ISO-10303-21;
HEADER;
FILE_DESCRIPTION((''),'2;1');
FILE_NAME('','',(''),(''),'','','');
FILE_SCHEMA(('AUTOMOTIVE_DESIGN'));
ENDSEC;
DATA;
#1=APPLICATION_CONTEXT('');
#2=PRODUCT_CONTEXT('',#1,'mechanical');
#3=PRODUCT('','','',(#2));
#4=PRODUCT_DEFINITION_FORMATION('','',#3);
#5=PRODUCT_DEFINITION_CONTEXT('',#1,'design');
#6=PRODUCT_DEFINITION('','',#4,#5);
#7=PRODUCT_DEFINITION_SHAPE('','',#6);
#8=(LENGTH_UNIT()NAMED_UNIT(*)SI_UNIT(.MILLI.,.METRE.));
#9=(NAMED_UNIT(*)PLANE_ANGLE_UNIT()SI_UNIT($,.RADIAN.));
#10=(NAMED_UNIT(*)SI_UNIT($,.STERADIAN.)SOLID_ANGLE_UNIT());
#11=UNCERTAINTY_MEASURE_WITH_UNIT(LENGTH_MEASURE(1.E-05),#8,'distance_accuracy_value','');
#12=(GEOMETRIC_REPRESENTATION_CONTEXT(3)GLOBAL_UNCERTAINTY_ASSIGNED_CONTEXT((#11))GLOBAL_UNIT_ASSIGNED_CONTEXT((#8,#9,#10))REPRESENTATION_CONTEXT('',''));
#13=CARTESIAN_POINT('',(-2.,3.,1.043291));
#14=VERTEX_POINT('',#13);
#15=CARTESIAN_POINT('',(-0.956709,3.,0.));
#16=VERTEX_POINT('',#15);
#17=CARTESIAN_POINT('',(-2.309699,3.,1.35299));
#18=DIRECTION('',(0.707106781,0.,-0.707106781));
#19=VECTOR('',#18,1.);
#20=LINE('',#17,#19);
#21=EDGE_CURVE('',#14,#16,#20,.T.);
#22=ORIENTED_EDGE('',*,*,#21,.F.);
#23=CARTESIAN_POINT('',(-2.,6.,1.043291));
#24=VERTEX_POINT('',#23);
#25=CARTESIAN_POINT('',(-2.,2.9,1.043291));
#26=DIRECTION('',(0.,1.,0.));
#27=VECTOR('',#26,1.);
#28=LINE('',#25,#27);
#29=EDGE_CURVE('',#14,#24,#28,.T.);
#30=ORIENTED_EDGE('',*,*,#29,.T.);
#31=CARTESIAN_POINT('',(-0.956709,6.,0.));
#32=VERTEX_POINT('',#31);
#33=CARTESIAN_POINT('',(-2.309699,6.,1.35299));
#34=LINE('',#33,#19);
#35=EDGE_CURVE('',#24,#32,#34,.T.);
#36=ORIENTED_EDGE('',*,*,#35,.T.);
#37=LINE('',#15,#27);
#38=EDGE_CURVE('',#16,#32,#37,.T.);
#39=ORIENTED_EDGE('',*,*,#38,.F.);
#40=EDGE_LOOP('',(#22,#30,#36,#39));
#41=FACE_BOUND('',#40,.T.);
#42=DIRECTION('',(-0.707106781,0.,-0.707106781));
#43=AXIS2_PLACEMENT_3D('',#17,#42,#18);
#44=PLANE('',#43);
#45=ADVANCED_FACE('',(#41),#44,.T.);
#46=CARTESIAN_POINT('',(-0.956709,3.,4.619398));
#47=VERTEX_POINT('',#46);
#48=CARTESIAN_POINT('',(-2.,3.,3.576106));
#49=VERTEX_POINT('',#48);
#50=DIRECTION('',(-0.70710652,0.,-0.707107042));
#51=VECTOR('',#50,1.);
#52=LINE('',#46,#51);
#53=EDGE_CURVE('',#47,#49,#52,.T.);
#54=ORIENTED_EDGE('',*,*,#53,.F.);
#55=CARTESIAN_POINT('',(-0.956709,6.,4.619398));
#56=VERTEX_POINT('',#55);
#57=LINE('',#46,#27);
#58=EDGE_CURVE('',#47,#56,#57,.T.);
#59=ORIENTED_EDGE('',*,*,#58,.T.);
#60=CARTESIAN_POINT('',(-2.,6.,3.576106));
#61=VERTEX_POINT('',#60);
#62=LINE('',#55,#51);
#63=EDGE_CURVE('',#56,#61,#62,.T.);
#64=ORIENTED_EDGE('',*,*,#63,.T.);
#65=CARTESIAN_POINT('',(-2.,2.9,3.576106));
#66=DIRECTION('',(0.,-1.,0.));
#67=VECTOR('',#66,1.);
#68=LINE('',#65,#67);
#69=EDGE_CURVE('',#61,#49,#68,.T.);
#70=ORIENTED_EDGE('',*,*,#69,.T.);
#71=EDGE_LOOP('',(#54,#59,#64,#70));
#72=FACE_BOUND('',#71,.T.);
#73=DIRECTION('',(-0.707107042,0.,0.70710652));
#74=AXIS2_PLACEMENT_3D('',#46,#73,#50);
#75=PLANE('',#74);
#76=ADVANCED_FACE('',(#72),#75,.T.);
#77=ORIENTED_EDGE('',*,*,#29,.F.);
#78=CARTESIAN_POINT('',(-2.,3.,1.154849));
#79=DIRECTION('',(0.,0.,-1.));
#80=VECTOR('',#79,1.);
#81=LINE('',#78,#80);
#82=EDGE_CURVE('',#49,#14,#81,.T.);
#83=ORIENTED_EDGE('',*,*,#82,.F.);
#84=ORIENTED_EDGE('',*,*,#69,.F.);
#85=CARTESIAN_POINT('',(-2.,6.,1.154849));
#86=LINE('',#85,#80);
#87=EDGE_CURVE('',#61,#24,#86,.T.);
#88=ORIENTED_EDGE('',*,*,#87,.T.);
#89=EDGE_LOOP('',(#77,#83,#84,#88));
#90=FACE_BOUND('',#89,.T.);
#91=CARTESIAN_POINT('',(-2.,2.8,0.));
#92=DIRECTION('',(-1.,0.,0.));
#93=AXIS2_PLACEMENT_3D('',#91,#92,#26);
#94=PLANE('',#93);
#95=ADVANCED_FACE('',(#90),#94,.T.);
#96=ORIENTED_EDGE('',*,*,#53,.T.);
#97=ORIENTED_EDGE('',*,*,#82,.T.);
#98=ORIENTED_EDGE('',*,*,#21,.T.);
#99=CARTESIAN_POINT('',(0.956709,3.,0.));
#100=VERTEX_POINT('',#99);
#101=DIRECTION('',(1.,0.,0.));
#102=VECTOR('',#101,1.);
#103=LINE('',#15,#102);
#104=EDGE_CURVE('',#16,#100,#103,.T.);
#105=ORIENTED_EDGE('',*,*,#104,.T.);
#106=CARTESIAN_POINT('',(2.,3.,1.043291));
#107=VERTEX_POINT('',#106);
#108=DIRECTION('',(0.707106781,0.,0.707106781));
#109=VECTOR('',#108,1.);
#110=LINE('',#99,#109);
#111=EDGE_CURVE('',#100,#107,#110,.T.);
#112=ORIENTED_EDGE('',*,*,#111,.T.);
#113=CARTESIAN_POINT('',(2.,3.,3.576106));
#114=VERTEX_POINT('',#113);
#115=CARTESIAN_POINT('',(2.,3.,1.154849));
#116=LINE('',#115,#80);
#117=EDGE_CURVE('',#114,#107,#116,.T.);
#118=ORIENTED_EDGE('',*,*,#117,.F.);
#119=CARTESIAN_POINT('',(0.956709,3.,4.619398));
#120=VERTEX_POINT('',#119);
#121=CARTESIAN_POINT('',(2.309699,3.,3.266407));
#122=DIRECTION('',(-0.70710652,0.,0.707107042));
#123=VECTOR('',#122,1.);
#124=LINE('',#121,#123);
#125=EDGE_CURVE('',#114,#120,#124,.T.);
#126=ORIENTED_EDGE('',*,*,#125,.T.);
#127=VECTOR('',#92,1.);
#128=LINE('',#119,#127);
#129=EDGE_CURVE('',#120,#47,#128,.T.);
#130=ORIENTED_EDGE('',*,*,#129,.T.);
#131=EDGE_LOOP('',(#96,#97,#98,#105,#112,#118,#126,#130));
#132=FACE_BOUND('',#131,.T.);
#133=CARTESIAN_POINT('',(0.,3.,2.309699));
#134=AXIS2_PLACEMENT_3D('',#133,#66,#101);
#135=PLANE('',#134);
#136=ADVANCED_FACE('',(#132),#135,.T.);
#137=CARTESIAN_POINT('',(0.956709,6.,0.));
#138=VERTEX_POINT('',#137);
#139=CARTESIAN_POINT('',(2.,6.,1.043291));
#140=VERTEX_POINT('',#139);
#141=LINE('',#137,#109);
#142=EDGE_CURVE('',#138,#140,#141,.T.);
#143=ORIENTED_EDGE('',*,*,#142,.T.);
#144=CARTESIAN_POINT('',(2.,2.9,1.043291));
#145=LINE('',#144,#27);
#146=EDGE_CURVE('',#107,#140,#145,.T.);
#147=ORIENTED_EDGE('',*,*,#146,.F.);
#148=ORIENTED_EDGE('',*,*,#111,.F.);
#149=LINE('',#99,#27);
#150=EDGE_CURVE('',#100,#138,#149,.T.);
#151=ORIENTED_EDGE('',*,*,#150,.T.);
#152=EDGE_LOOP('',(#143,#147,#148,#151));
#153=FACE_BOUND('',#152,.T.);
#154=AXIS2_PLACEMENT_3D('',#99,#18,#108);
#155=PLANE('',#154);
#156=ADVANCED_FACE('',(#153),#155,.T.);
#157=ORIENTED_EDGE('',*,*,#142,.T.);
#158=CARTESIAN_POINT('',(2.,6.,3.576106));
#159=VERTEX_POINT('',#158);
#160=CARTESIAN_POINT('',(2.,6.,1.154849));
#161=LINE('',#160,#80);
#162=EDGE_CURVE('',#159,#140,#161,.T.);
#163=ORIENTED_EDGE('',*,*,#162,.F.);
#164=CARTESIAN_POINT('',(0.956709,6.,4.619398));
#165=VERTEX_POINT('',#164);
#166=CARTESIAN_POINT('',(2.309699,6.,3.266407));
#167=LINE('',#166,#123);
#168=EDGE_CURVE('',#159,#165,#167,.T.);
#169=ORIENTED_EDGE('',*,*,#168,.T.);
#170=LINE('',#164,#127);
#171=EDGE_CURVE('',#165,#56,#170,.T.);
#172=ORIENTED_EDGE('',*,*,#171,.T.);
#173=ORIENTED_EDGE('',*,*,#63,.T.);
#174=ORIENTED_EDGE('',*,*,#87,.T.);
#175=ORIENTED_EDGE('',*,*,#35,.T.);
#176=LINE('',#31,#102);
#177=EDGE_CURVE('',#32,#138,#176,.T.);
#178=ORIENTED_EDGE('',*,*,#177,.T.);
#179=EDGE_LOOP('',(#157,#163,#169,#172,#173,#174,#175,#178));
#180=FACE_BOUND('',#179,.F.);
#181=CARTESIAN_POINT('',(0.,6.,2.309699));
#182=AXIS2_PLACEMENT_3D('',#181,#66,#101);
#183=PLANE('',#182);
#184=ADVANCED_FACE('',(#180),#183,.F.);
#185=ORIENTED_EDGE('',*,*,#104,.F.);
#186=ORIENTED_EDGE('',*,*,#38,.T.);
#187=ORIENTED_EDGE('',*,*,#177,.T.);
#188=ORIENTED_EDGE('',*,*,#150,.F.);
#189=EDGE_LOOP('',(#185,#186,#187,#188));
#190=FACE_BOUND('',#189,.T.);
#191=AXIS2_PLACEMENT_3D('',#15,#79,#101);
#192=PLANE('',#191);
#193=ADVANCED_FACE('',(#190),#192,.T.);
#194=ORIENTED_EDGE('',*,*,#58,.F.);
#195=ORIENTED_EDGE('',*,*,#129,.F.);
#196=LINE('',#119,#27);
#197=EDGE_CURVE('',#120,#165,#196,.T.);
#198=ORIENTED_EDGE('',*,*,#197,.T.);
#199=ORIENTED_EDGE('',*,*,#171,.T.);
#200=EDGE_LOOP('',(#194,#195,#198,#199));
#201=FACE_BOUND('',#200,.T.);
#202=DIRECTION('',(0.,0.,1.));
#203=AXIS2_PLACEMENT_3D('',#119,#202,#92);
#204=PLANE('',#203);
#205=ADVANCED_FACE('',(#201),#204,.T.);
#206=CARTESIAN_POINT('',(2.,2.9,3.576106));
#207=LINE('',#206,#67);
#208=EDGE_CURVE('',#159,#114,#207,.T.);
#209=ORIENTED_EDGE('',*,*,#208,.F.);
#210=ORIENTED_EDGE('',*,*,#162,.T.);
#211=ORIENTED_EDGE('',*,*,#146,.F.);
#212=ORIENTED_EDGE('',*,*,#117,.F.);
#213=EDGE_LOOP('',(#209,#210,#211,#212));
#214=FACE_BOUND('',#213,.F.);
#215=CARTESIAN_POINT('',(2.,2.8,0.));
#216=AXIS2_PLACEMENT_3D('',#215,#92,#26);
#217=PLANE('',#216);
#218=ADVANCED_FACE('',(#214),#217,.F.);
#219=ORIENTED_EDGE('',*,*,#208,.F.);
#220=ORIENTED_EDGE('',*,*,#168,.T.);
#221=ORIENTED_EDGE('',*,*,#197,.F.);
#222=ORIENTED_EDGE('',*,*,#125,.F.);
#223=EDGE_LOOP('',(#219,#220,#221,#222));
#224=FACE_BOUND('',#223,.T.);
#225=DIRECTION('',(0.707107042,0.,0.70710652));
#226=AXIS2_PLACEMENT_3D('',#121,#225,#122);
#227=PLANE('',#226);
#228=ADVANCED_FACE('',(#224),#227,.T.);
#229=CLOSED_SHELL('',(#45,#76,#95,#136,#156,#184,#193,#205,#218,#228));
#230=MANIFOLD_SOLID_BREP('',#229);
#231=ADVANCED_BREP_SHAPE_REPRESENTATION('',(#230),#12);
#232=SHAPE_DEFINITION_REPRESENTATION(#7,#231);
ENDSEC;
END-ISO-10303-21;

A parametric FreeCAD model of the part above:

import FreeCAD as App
import Part
import Sketcher

V = App.Vector

doc = App.newDocument("Part")
body = doc.addObject("PartDesign::Body", "Body")

# Sketch on XY plane
sketch1 = body.newObject("Sketcher::SketchObject", "Sketch")
sketch1.AttachmentSupport = (doc.getObject("XY_Plane"), [""])
sketch1.MapMode = "FlatFace"
sketch1.addGeometry([
    Part.LineSegment(V(-2, 6.8, 0), V(-2, 2.8, 0)),
    Part.LineSegment(V(-2, 2.8, 0), V(2, 2.8, 0)),
    Part.LineSegment(V(2, 2.8, 0), V(2, 6.8, 0)),
    Part.LineSegment(V(2, 6.8, 0), V(-2, 6.8, 0)),
], False)
sketch1.addConstraint([
    Sketcher.Constraint("Coincident", 0, 2, 1, 1),
    Sketcher.Constraint("Coincident", 1, 2, 2, 1),
    Sketcher.Constraint("Coincident", 2, 2, 3, 1),
    Sketcher.Constraint("Coincident", 3, 2, 0, 1),
    Sketcher.Constraint("Vertical", 0),
    Sketcher.Constraint("Horizontal", 1),
    Sketcher.Constraint("Vertical", 2),
    Sketcher.Constraint("Horizontal", 3),
    Sketcher.Constraint("Equal", 3, 0),
    Sketcher.Constraint("DistanceX", 1, 1, 1, 2, 4.0),
    Sketcher.Constraint("DistanceX", 0, 2, -1, 1, 2.0),
    Sketcher.Constraint("DistanceY", -1, 1, 0, 2, 2.8),
])
pad1 = body.newObject("PartDesign::Pad", "Pad")
pad1.Profile = sketch1
pad1.Length = 10
body2 = doc.addObject("PartDesign::Body", "Body001")

# Sketch on XZ plane
sketch2 = body2.newObject("Sketcher::SketchObject", "Sketch001")
sketch2.AttachmentSupport = (doc.getObject("XZ_Plane001"), [""])
sketch2.MapMode = "FlatFace"
sketch2.addGeometry([
    Part.LineSegment(V(2.3, 1.4, 0), V(2.3, 3.3, 0)),  # 0
    Part.LineSegment(V(2.3, 3.3, 0), V(1, 4.6, 0)),  # 1
    Part.LineSegment(V(1, 4.6, 0), V(-1, 4.6, 0)),  # 2
    Part.LineSegment(V(-1, 4.6, 0), V(-2.3, 3.3, 0)),  # 3
    Part.LineSegment(V(-2.3, 3.3, 0), V(-2.3, 1.4, 0)),  # 4
    Part.LineSegment(V(-2.3, 1.4, 0), V(-1, 0, 0)),  # 5
    Part.LineSegment(V(-1, 0, 0), V(1, 0, 0)),  # 6
    Part.LineSegment(V(1, 0, 0), V(2.3, 1.4, 0)),  # 7
], False)
sketch2.addConstraint([
    Sketcher.Constraint("Coincident", 0, 2, 1, 1),
    Sketcher.Constraint("Coincident", 1, 2, 2, 1),
    Sketcher.Constraint("Coincident", 2, 2, 3, 1),
    Sketcher.Constraint("Coincident", 3, 2, 4, 1),
    Sketcher.Constraint("Coincident", 4, 2, 5, 1),
    Sketcher.Constraint("Coincident", 5, 2, 6, 1),
    Sketcher.Constraint("Coincident", 6, 2, 7, 1),
    Sketcher.Constraint("Coincident", 7, 2, 0, 1),
    Sketcher.Constraint("Vertical", 0),
    Sketcher.Constraint("Horizontal", 2),
    Sketcher.Constraint("Vertical", 4),
    Sketcher.Constraint("Horizontal", 6),
    Sketcher.Constraint("Symmetric", 5, 2, 6, 2, -1, 1),
    Sketcher.Constraint("Symmetric", 0, 2, 3, 2, -2),
    Sketcher.Constraint("Perpendicular", 1, 3),
    Sketcher.Constraint("Perpendicular", 3, 5),
    Sketcher.Constraint("Perpendicular", 5, 7),
    Sketcher.Constraint("Horizontal", 4, 2, 7, 2),
    Sketcher.Constraint("Vertical", 2, 2, 5, 2),
    Sketcher.Constraint("Equal", 6, 0),
    Sketcher.Constraint("DistanceX", 2, 2, 2, 1, 1.913418),
    Sketcher.Constraint("DistanceX", -1, 1, 0, 2, 2.309699),
])
pad2 = body2.newObject("PartDesign::Pad", "Pad001")
pad2.Profile = sketch2
pad2.Length = 3
pad2.Reversed = True
body3 = doc.addObject("PartDesign::Body", "Body002")
doc.recompute()

body2.Placement = App.Placement(V(0, 3, 0), App.Rotation(V(0, 0, 1), 0))
boolean = body3.newObject("PartDesign::Boolean", "Boolean")
boolean.Type = "Fuse"
boolean.addObjects([body2])
doc.recompute()

boolean2 = body3.newObject("PartDesign::Boolean", "Boolean001")
boolean2.Type = "Common"
boolean2.addObjects([body])

doc.recompute()
